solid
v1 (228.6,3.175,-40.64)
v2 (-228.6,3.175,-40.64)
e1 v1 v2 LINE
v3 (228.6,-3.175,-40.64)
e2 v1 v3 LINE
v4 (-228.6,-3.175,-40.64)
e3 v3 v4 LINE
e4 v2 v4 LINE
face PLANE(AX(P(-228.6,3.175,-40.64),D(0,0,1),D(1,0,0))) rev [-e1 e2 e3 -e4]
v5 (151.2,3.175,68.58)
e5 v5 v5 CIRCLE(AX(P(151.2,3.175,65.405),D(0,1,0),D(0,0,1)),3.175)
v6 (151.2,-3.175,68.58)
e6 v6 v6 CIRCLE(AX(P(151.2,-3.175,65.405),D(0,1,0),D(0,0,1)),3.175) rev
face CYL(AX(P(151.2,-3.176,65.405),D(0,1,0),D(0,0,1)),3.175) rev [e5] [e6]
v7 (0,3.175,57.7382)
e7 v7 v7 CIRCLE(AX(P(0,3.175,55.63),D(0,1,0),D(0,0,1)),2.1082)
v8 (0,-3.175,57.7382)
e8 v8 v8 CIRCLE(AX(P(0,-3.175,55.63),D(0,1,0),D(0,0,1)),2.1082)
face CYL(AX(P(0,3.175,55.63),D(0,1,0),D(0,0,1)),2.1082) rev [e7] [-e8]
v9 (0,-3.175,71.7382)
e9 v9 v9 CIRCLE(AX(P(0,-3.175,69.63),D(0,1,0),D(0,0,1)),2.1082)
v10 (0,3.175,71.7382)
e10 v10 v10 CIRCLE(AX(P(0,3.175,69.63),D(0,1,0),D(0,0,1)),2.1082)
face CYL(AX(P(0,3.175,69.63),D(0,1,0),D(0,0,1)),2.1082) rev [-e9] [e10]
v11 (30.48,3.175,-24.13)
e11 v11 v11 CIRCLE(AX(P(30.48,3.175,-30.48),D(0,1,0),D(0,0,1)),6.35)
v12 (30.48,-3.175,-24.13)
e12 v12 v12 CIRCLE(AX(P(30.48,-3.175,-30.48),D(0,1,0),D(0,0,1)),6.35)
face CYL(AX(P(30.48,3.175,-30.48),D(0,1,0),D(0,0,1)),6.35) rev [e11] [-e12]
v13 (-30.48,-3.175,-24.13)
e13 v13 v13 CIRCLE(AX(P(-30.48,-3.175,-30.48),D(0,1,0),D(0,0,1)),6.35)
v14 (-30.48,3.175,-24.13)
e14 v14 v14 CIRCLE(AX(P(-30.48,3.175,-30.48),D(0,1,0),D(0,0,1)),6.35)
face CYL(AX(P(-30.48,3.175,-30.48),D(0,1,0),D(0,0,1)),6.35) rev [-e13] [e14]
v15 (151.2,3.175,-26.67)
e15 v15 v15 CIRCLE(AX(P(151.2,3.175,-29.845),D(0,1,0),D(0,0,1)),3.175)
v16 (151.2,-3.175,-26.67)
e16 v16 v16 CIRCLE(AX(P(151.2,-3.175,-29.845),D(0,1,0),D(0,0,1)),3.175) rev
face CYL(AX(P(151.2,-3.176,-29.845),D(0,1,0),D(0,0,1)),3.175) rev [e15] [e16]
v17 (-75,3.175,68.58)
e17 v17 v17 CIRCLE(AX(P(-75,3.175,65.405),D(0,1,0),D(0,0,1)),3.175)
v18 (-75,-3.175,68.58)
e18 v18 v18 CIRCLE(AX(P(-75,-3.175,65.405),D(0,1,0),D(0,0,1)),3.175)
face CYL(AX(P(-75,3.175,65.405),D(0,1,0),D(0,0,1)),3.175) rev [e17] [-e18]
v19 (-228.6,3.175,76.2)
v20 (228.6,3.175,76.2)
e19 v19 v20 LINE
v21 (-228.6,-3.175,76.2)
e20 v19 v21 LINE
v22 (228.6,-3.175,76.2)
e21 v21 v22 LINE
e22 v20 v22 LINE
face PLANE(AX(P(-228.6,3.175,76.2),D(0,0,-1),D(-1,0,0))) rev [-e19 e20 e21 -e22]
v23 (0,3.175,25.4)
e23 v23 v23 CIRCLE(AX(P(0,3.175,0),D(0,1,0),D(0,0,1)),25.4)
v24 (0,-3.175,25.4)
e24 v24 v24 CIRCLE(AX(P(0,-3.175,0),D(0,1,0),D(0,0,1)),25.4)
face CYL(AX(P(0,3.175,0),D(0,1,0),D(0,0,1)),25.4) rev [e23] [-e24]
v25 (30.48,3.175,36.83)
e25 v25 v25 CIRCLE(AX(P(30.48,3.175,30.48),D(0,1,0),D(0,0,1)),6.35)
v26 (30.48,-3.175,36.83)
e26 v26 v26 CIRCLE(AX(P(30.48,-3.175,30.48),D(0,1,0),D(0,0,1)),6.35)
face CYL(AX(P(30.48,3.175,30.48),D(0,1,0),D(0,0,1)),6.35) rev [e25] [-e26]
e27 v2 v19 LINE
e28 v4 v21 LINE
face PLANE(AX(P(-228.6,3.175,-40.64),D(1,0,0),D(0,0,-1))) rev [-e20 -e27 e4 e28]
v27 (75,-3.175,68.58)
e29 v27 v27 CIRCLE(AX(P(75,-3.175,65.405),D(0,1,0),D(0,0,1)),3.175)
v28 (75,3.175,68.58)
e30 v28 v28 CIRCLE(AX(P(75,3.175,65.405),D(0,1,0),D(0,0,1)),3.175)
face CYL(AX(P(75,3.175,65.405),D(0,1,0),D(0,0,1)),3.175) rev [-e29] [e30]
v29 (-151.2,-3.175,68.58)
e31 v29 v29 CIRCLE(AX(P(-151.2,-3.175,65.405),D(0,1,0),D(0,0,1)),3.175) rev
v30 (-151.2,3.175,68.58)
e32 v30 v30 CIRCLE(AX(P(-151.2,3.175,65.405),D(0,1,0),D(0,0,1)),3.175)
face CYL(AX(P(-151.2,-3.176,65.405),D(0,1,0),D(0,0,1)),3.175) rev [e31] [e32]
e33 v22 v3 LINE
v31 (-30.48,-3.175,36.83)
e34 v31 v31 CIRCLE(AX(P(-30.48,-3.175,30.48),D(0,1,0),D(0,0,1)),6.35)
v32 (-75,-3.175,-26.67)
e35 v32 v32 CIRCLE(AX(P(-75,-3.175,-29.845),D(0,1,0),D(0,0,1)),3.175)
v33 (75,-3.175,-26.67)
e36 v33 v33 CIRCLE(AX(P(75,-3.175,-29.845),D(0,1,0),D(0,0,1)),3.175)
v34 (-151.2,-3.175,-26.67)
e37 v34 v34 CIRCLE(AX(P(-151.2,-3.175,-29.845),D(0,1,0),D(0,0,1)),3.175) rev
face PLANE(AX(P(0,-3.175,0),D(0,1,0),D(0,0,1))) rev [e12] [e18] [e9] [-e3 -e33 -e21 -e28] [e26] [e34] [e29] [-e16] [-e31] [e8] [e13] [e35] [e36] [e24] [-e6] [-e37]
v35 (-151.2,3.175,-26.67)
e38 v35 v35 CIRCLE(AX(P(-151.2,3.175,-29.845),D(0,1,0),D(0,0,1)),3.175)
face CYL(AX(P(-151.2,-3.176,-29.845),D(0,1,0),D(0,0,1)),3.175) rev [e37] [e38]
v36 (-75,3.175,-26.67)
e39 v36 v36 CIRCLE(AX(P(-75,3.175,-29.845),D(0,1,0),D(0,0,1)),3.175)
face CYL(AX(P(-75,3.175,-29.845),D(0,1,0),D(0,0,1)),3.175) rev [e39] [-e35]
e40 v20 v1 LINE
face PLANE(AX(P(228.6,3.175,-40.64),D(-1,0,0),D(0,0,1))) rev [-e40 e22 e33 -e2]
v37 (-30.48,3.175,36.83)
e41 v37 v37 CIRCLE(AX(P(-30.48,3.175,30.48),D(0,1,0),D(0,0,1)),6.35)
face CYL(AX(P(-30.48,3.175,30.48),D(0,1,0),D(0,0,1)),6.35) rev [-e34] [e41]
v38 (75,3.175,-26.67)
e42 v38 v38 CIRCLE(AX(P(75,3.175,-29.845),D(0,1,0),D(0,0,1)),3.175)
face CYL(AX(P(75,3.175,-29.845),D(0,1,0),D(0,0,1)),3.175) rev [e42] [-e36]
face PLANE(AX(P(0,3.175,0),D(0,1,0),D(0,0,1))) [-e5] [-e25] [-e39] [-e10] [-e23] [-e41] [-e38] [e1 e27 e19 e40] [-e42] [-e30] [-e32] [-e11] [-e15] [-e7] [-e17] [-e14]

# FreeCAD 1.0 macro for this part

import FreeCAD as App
import Part
import Sketcher
from FreeCAD import Vector
Q = App.Units.Quantity

doc = App.newDocument("Part")
params = doc.addObject("Spreadsheet::Sheet", "Params")
for row, (alias, value) in enumerate([
    ("sketch1_width", "18 in"),
    ("sketch1_height", "4.6 in"),
    ("pad1_length", "0.25 in"),
    ("sketch2_diameter", "2 in"),
    ("hole_diameter", "2 in"),
    ("sketch3_diameter", "0.5 in"),
    ("hole2_diameter", "0.5 in"),
    ("sketch4_diameter", "0.166 in"),
    ("hole3_diameter", "0.166 in"),
    ("sketch5_diameter", "0.25 in"),
    ("hole4_diameter", "0.25 in"),
    ("sketch6_diameter", "0.25 in"),
    ("sketch7_diameter", "0.25 in"),
    ("sketch8_diameter", "0.25 in"),
    ("sketch9_diameter", "0.25 in"),
], start=1):
    params.set(f"A{row}", alias)
    params.set(f"B{row}", "=" + value)
    params.setAlias(f"B{row}", alias)

body = doc.addObject("PartDesign::Body", "Body")

sketch1 = doc.addObject("Sketcher::SketchObject", "Sketch")
body.addObject(sketch1)
sketch1.AttachmentSupport = (doc.XZ_Plane, [""])
sketch1.MapMode = "FlatFace"
sketch1.addGeometry(Part.LineSegment(Vector(-229, -41, 0), Vector(-229, 76, 0)), False)
sketch1.addGeometry(Part.LineSegment(Vector(-229, 76, 0), Vector(229, 76, 0)), False)
sketch1.addGeometry(Part.LineSegment(Vector(229, 76, 0), Vector(229, -41, 0)), False)
sketch1.addGeometry(Part.LineSegment(Vector(229, -41, 0), Vector(-229, -41, 0)), False)
sketch1.addConstraint(Sketcher.Constraint("Coincident", 0, 2, 1, 1))
sketch1.addConstraint(Sketcher.Constraint("Coincident", 1, 2, 2, 1))
sketch1.addConstraint(Sketcher.Constraint("Coincident", 2, 2, 3, 1))
sketch1.addConstraint(Sketcher.Constraint("Coincident", 3, 2, 0, 1))
sketch1.addConstraint(Sketcher.Constraint("Vertical", 0))
sketch1.addConstraint(Sketcher.Constraint("Horizontal", 1))
sketch1.addConstraint(Sketcher.Constraint("Vertical", 2))
sketch1.addConstraint(Sketcher.Constraint("Horizontal", 3))
sketch1.addConstraint(Sketcher.Constraint("DistanceX", 1, 1, 1, 2, Q("18 in")))
sketch1.addConstraint(Sketcher.Constraint("DistanceY", 0, 1, 0, 2, Q("4.6 in")))
sketch1.addConstraint(Sketcher.Constraint("DistanceX", 0, 2, -1, 1, Q("9 in")))
sketch1.addConstraint(Sketcher.Constraint("DistanceY", -1, 1, 0, 2, Q("3 in")))
sketch1.setExpression("Constraints[8]", "Params.sketch1_width")
sketch1.setExpression("Constraints[9]", "Params.sketch1_height")
pad1 = doc.addObject("PartDesign::Pad", "Pad")
body.addObject(pad1)
pad1.Profile = sketch1
pad1.setExpression("Length", "Params.pad1_length")
pad1.Midplane = True

sketch2 = doc.addObject("Sketcher::SketchObject", "Sketch001")
body.addObject(sketch2)
sketch2.AttachmentSupport = (doc.XZ_Plane, [""])
sketch2.MapMode = "FlatFace"
sketch2.AttachmentOffset = App.Placement(Vector(0, 0, -0.125 * 25.4), App.Rotation())
sketch2.addGeometry(Part.Circle(Vector(0, 0, 0), Vector(0, 0, 1), 25), False)
sketch2.addConstraint(Sketcher.Constraint("Coincident", 0, 3, -1, 1))
sketch2.addConstraint(Sketcher.Constraint("Diameter", 0, Q("2 in")))
sketch2.setExpression("Constraints[1]", "Params.sketch2_diameter")
doc.recompute()
hole = doc.addObject("PartDesign::Hole", "Hole")
body.addObject(hole)
hole.Profile = sketch2
hole.ThreadType = "None"
hole.setExpression("Diameter", "Params.hole_diameter")
hole.DepthType = "ThroughAll"
hole.Reversed = True

sketch3 = doc.addObject("Sketcher::SketchObject", "Sketch002")
body.addObject(sketch3)
sketch3.AttachmentSupport = (doc.XZ_Plane, [""])
sketch3.MapMode = "FlatFace"
sketch3.AttachmentOffset = App.Placement(Vector(0, 0, -0.125 * 25.4), App.Rotation())
sketch3.addGeometry(Part.Circle(Vector(30, 30, 0), Vector(0, 0, 1), 6), False)
sketch3.addGeometry(Part.Circle(Vector(-30, -30, 0), Vector(0, 0, 1), 6), False)
sketch3.addGeometry(Part.Circle(Vector(-30, 30, 0), Vector(0, 0, 1), 6), False)
sketch3.addGeometry(Part.Circle(Vector(30, -30, 0), Vector(0, 0, 1), 6), False)
sketch3.addConstraint(Sketcher.Constraint("Equal", 0, 1))
sketch3.addConstraint(Sketcher.Constraint("Equal", 1, 2))
sketch3.addConstraint(Sketcher.Constraint("Equal", 2, 3))
sketch3.addConstraint(Sketcher.Constraint("Symmetric", 0, 3, 1, 3, -1, 1))
sketch3.addConstraint(Sketcher.Constraint("Symmetric", 2, 3, 3, 3, -1, 1))
sketch3.addConstraint(Sketcher.Constraint("Symmetric", 0, 3, 2, 3, -2))
sketch3.addConstraint(Sketcher.Constraint("Diameter", 0, Q("0.5 in")))
sketch3.addConstraint(Sketcher.Constraint("DistanceX", -1, 1, 0, 3, Q("1.2 in")))
sketch3.addConstraint(Sketcher.Constraint("DistanceY", -1, 1, 0, 3, Q("1.2 in")))
sketch3.setExpression("Constraints[6]", "Params.sketch3_diameter")
doc.recompute()
hole2 = doc.addObject("PartDesign::Hole", "Hole001")
body.addObject(hole2)
hole2.Profile = sketch3
hole2.ThreadType = "None"
hole2.setExpression("Diameter", "Params.hole2_diameter")
hole2.DepthType = "ThroughAll"
hole2.Reversed = True

sketch4 = doc.addObject("Sketcher::SketchObject", "Sketch003")
body.addObject(sketch4)
sketch4.AttachmentSupport = (doc.XZ_Plane, [""])
sketch4.MapMode = "FlatFace"
sketch4.AttachmentOffset = App.Placement(Vector(0, 0, -0.125 * 25.4), App.Rotation())
sketch4.addGeometry(Part.Circle(Vector(0, 55.6, 0), Vector(0, 0, 1), 2.1), False)
sketch4.addGeometry(Part.Circle(Vector(0, 69.6, 0), Vector(0, 0, 1), 2.1), False)
sketch4.addConstraint(Sketcher.Constraint("Equal", 0, 1))
sketch4.addConstraint(Sketcher.Constraint("PointOnObject", 0, 3, -2))
sketch4.addConstraint(Sketcher.Constraint("PointOnObject", 1, 3, -2))
sketch4.addConstraint(Sketcher.Constraint("Diameter", 0, Q("0.166 in")))
sketch4.addConstraint(Sketcher.Constraint("DistanceY", -1, 1, 0, 3, 55.63))
sketch4.addConstraint(Sketcher.Constraint("DistanceY", -1, 1, 1, 3, 69.63))
sketch4.setExpression("Constraints[3]", "Params.sketch4_diameter")
doc.recompute()
hole3 = doc.addObject("PartDesign::Hole", "Hole002")
body.addObject(hole3)
hole3.Profile = sketch4
hole3.ThreadType = "None"
hole3.setExpression("Diameter", "Params.hole3_diameter")
hole3.DepthType = "ThroughAll"
hole3.Reversed = True

sketch5 = doc.addObject("Sketcher::SketchObject", "Sketch004")
body.addObject(sketch5)
sketch5.AttachmentSupport = (doc.XZ_Plane, [""])
sketch5.MapMode = "FlatFace"
sketch5.AttachmentOffset = App.Placement(Vector(0, 0, -0.125 * 25.4), App.Rotation())
sketch5.addGeometry(Part.Circle(Vector(75, 65.4, 0), Vector(0, 0, 1), 3.2), False)
sketch5.addGeometry(Part.Circle(Vector(-75, -29.8, 0), Vector(0, 0, 1), 3.2), False)
sketch5.addGeometry(Part.Circle(Vector(-75, 65.4, 0), Vector(0, 0, 1), 3.2), False)
sketch5.addGeometry(Part.Circle(Vector(75, -29.8, 0), Vector(0, 0, 1), 3.2), False)
sketch5.addConstraint(Sketcher.Constraint("Equal", 0, 1))
sketch5.addConstraint(Sketcher.Constraint("Equal", 1, 2))
sketch5.addConstraint(Sketcher.Constraint("Equal", 2, 3))
sketch5.addConstraint(Sketcher.Constraint("Symmetric", 0, 3, 2, 3, -2))
sketch5.addConstraint(Sketcher.Constraint("Symmetric", 1, 3, 3, 3, -2))
sketch5.addConstraint(Sketcher.Constraint("Vertical", 1, 3, 2, 3))
sketch5.addConstraint(Sketcher.Constraint("Diameter", 0, Q("0.25 in")))
sketch5.addConstraint(Sketcher.Constraint("DistanceY", 1, 3, 0, 3, Q("3.75 in")))
sketch5.addConstraint(Sketcher.Constraint("DistanceY", -1, 1, 0, 3, Q("2.575 in")))
sketch5.addConstraint(Sketcher.Constraint("DistanceX", -1, 1, 0, 3, 75.0))
sketch5.setExpression("Constraints[6]", "Params.sketch5_diameter")
doc.recompute()
hole4 = doc.addObject("PartDesign::Hole", "Hole003")
body.addObject(hole4)
hole4.Profile = sketch5
hole4.ThreadType = "None"
hole4.setExpression("Diameter", "Params.hole4_diameter")
hole4.DepthType = "ThroughAll"
hole4.Reversed = True

sketch6 = doc.addObject("Sketcher::SketchObject", "Sketch005")
body.addObject(sketch6)
sketch6.AttachmentSupport = (doc.XZ_Plane, [""])
sketch6.MapMode = "FlatFace"
sketch6.AttachmentOffset = App.Placement(Vector(0, 0, -0.125 * 25.4), App.Rotation())
sketch6.addGeometry(Part.Circle(Vector(-151.2, -29.8, 0), Vector(0, 0, 1), 3.2), False)
sketch6.addConstraint(Sketcher.Constraint("Diameter", 0, Q("0.25 in")))
sketch6.addConstraint(Sketcher.Constraint("DistanceY", 0, 3, -1, 1, Q("1.175 in")))
sketch6.addConstraint(Sketcher.Constraint("DistanceX", 0, 3, -1, 1, 151.2))
sketch6.setExpression("Constraints[0]", "Params.sketch6_diameter")
pocket1 = doc.addObject("PartDesign::Pocket", "Pocket")
body.addObject(pocket1)
pocket1.Profile = sketch6
pocket1.Type = "UpToFirst"
pocket1.Reversed = True

sketch7 = doc.addObject("Sketcher::SketchObject", "Sketch006")
body.addObject(sketch7)
sketch7.AttachmentSupport = (doc.XZ_Plane, [""])
sketch7.MapMode = "FlatFace"
sketch7.AttachmentOffset = App.Placement(Vector(0, 0, -0.125 * 25.4), App.Rotation())
sketch7.addGeometry(Part.Circle(Vector(-151.2, 65.4, 0), Vector(0, 0, 1), 3.2), False)
sketch7.addConstraint(Sketcher.Constraint("Diameter", 0, Q("0.25 in")))
sketch7.addConstraint(Sketcher.Constraint("DistanceY", -1, 1, 0, 3, Q("2.575 in")))
sketch7.addConstraint(Sketcher.Constraint("DistanceX", 0, 3, -1, 1, 151.2))
sketch7.setExpression("Constraints[0]", "Params.sketch7_diameter")
pocket2 = doc.addObject("PartDesign::Pocket", "Pocket001")
body.addObject(pocket2)
pocket2.Profile = sketch7
pocket2.Type = "UpToFirst"
pocket2.Reversed = True

sketch8 = doc.addObject("Sketcher::SketchObject", "Sketch007")
body.addObject(sketch8)
sketch8.AttachmentSupport = (doc.XZ_Plane, [""])
sketch8.MapMode = "FlatFace"
sketch8.AttachmentOffset = App.Placement(Vector(0, 0, -0.125 * 25.4), App.Rotation())
sketch8.addGeometry(Part.Circle(Vector(151.2, -29.8, 0), Vector(0, 0, 1), 3.2), False)
sketch8.addConstraint(Sketcher.Constraint("Diameter", 0, Q("0.25 in")))
sketch8.addConstraint(Sketcher.Constraint("DistanceY", 0, 3, -1, 1, Q("1.175 in")))
sketch8.addConstraint(Sketcher.Constraint("DistanceX", -1, 1, 0, 3, 151.2))
sketch8.setExpression("Constraints[0]", "Params.sketch8_diameter")
pocket3 = doc.addObject("PartDesign::Pocket", "Pocket002")
body.addObject(pocket3)
pocket3.Profile = sketch8
pocket3.Type = "UpToFirst"
pocket3.Reversed = True

sketch9 = doc.addObject("Sketcher::SketchObject", "Sketch008")
body.addObject(sketch9)
sketch9.AttachmentSupport = (doc.XZ_Plane, [""])
sketch9.MapMode = "FlatFace"
sketch9.AttachmentOffset = App.Placement(Vector(0, 0, -0.125 * 25.4), App.Rotation())
sketch9.addGeometry(Part.Circle(Vector(151.2, 65.4, 0), Vector(0, 0, 1), 3.2), False)
sketch9.addConstraint(Sketcher.Constraint("Diameter", 0, Q("0.25 in")))
sketch9.addConstraint(Sketcher.Constraint("DistanceY", -1, 1, 0, 3, Q("2.575 in")))
sketch9.addConstraint(Sketcher.Constraint("DistanceX", -1, 1, 0, 3, 151.2))
sketch9.setExpression("Constraints[0]", "Params.sketch9_diameter")
pocket4 = doc.addObject("PartDesign::Pocket", "Pocket003")
body.addObject(pocket4)
pocket4.Profile = sketch9
pocket4.Type = "UpToFirst"
pocket4.Reversed = True

doc.recompute()
